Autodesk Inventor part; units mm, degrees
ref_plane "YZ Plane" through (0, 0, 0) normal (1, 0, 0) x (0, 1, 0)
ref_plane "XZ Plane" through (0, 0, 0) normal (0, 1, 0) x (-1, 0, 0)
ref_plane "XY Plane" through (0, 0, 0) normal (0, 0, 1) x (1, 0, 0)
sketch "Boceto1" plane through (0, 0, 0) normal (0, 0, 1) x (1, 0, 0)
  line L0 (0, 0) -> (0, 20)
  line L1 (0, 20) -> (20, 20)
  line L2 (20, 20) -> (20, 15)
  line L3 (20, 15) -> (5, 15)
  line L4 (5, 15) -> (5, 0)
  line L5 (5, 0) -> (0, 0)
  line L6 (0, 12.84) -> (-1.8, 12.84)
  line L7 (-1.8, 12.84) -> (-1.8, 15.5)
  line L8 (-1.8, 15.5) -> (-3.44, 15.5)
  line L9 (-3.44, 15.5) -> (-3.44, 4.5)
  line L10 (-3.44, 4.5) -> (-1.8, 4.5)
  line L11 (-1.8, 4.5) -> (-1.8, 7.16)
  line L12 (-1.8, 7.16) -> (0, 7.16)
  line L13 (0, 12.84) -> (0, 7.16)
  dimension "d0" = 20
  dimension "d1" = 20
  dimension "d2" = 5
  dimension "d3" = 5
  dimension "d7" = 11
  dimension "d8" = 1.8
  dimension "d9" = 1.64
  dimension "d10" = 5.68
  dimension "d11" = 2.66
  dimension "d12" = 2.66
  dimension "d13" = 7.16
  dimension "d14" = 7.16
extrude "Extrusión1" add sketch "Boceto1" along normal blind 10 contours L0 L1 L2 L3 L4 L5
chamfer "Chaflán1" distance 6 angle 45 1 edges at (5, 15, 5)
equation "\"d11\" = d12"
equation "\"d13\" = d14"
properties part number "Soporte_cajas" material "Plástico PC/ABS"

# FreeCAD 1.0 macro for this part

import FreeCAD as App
import Part
import Sketcher
from FreeCAD import Vector


def edges_at(feature, points):
    """Names of the edges that pass closest to the given points."""
    edges = feature.Shape.Edges
    near = lambda p: min(range(len(edges)), key=lambda i: edges[i].distToShape(Part.Vertex(*p))[0])
    return sorted({f"Edge{near(p) + 1}" for p in points})

doc = App.newDocument("Part")
body = doc.addObject("PartDesign::Body", "Body")

# Sketch on XY plane
sketch1 = body.newObject("Sketcher::SketchObject", "Sketch")
sketch1.AttachmentSupport = (doc.getObject("XY_Plane"), [""])
sketch1.MapMode = "FlatFace"
sketch1.addGeometry([
    Part.LineSegment(Vector(0, 20, 0), Vector(0, 0, 0)),  # 0
    Part.LineSegment(Vector(0, 0, 0), Vector(5, 0, 0)),  # 1
    Part.LineSegment(Vector(5, 0, 0), Vector(5, 15, 0)),  # 2
    Part.LineSegment(Vector(5, 15, 0), Vector(20, 15, 0)),  # 3
    Part.LineSegment(Vector(20, 15, 0), Vector(20, 20, 0)),  # 4
    Part.LineSegment(Vector(20, 20, 0), Vector(0, 20, 0)),  # 5
], False)
sketch1.addConstraint([
    Sketcher.Constraint("Coincident", 0, 2, 1, 1),
    Sketcher.Constraint("Coincident", 1, 2, 2, 1),
    Sketcher.Constraint("Coincident", 2, 2, 3, 1),
    Sketcher.Constraint("Coincident", 3, 2, 4, 1),
    Sketcher.Constraint("Coincident", 4, 2, 5, 1),
    Sketcher.Constraint("Coincident", 5, 2, 0, 1),
    Sketcher.Constraint("Vertical", 0),
    Sketcher.Constraint("Horizontal", 1),
    Sketcher.Constraint("Vertical", 2),
    Sketcher.Constraint("Horizontal", 3),
    Sketcher.Constraint("Vertical", 4),
    Sketcher.Constraint("Horizontal", 5),
    Sketcher.Constraint("Coincident", 0, 2, -1, 1),
    Sketcher.Constraint("Equal", 5, 0),
    Sketcher.Constraint("Equal", 3, 2),
    Sketcher.Constraint("DistanceX", 1, 1, 1, 2, 5.0),
    Sketcher.Constraint("DistanceX", 5, 2, 5, 1, 20.0),
])
pad1 = body.newObject("PartDesign::Pad", "Pad")
pad1.Profile = sketch1
pad1.Length = 10
doc.recompute()

chamfer = body.newObject("PartDesign::Chamfer", "Chamfer")
chamfer.Base = (pad1, edges_at(pad1, [(5, 15, 5)]))
chamfer.Size = 6

doc.recompute()
